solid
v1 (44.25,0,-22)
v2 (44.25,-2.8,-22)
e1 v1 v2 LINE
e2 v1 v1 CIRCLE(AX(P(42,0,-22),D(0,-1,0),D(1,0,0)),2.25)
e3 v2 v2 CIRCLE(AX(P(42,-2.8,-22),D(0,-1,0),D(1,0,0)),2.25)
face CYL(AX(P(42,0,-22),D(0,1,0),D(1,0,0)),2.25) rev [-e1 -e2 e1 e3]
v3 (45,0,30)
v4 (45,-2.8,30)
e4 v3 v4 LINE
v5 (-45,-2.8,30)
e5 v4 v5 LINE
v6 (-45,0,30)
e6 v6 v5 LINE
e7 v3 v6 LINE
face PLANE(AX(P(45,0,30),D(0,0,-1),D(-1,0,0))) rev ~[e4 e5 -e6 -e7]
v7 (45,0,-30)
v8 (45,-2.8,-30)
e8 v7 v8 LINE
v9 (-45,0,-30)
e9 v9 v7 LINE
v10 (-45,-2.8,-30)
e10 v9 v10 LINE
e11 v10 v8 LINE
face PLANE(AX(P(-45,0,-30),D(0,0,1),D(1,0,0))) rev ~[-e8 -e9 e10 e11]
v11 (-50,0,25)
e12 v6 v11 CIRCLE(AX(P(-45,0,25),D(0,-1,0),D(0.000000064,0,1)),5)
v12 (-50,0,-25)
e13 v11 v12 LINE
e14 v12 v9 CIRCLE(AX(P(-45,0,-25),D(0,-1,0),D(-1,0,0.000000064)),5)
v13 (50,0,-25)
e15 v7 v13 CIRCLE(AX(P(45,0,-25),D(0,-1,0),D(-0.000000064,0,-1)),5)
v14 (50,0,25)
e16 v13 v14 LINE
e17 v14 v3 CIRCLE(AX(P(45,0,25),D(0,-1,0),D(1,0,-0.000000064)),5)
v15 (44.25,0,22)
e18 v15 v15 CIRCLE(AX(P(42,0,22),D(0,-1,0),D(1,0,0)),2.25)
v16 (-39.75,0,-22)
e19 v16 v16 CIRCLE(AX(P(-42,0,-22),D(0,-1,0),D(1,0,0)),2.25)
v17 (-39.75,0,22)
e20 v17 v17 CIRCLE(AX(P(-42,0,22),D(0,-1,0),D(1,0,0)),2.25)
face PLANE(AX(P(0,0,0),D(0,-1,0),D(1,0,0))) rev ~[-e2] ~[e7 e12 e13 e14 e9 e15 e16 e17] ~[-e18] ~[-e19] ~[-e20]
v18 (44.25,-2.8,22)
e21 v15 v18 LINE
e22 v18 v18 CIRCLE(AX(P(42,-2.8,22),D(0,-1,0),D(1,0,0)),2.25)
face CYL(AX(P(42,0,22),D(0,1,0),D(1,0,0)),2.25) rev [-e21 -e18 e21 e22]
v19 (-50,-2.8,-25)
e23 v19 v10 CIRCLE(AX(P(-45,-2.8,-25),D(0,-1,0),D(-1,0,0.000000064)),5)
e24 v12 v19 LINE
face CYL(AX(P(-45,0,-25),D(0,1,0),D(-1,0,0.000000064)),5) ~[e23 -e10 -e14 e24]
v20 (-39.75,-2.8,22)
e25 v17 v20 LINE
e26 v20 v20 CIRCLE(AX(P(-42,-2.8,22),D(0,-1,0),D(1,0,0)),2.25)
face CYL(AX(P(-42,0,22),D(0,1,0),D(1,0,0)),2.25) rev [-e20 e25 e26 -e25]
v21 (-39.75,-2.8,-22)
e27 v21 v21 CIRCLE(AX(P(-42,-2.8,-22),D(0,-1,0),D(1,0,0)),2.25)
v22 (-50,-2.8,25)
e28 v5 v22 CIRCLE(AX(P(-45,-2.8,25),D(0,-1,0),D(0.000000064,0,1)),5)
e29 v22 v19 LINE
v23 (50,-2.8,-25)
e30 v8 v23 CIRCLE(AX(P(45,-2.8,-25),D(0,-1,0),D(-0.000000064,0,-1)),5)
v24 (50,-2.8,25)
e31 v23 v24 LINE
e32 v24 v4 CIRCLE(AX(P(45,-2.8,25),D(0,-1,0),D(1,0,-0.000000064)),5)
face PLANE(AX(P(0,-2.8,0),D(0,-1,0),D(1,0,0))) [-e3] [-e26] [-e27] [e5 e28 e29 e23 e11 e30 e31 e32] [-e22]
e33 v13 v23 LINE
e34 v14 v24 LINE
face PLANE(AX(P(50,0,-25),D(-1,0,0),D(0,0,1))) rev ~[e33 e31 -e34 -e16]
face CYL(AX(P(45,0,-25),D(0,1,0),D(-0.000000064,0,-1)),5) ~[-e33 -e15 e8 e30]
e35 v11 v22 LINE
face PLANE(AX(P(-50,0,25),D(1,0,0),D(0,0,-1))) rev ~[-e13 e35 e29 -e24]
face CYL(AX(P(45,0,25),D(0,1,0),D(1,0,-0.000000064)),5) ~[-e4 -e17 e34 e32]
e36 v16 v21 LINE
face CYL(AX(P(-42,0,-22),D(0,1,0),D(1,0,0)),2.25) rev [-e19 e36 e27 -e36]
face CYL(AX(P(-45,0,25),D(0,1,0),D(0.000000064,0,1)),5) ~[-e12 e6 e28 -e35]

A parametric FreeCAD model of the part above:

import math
import FreeCAD as App
import Part
import Sketcher
from FreeCAD import Vector
Q = App.Units.Quantity

doc = App.newDocument("Part")
body = doc.addObject("PartDesign::Body", "Body")

sketch1 = body.newObject("Sketcher::SketchObject", "Sketch")
sketch1.AttachmentSupport = (doc.getObject("XZ_Plane"), [""])
sketch1.MapMode = "FlatFace"
sketch1.addGeometry([
    Part.LineSegment(Vector(-45, -30, 0), Vector(45, -30, 0)),
    Part.ArcOfCircle(Part.Circle(Vector(45, -25, 0), Vector(0, 0, 1), 5), math.radians(-90.000004), math.radians(0.000004)),
    Part.LineSegment(Vector(50, -25, 0), Vector(50, 25, 0)),
    Part.ArcOfCircle(Part.Circle(Vector(45, 25, 0), Vector(0, 0, 1), 5), math.radians(-0.000004), math.radians(90.000004)),
    Part.LineSegment(Vector(45, 30, 0), Vector(-45, 30, 0)),
    Part.ArcOfCircle(Part.Circle(Vector(-45, 25, 0), Vector(0, 0, 1), 5), math.radians(89.999996), math.radians(180.000004)),
    Part.LineSegment(Vector(-50, 25, 0), Vector(-50, -25, 0)),
    Part.ArcOfCircle(Part.Circle(Vector(-45, -25, 0), Vector(0, 0, 1), 5), math.radians(179.999996), math.radians(270.000004)),
    Part.Circle(Vector(-42, -22, 0), Vector(0, 0, 1), 2.25),
    Part.Circle(Vector(42, -22, 0), Vector(0, 0, 1), 2.25),
    Part.Circle(Vector(-42, 22, 0), Vector(0, 0, 1), 2.25),
    Part.Circle(Vector(42, 22, 0), Vector(0, 0, 1), 2.25),
], False)
sketch1.addConstraint([
    Sketcher.Constraint("Tangent", 0, 2, 1, 1),
    Sketcher.Constraint("Tangent", 1, 2, 2, 1),
    Sketcher.Constraint("Tangent", 2, 2, 3, 1),
    Sketcher.Constraint("Tangent", 3, 2, 4, 1),
    Sketcher.Constraint("Tangent", 4, 2, 5, 1),
    Sketcher.Constraint("Tangent", 5, 2, 6, 1),
    Sketcher.Constraint("Tangent", 6, 2, 7, 1),
    Sketcher.Constraint("Tangent", 7, 2, 0, 1),
    Sketcher.Constraint("Horizontal", 0),
    Sketcher.Constraint("Vertical", 2),
    Sketcher.Constraint("Horizontal", 4),
    Sketcher.Constraint("Vertical", 6),
    Sketcher.Constraint("Equal", 1, 3),
    Sketcher.Constraint("Equal", 3, 5),
    Sketcher.Constraint("Equal", 5, 7),
    Sketcher.Constraint("Equal", 8, 9),
    Sketcher.Constraint("Equal", 9, 10),
    Sketcher.Constraint("Equal", 10, 11),
    Sketcher.Constraint("Symmetric", 1, 3, 5, 3, -1, 1),
    Sketcher.Constraint("Symmetric", 9, 3, 10, 3, -1, 1),
    Sketcher.Constraint("Symmetric", 8, 3, 11, 3, -1, 1),
    Sketcher.Constraint("Symmetric", 8, 3, 9, 3, -2),
    Sketcher.Constraint("Radius", 1, Q("5 mm")),
    Sketcher.Constraint("Diameter", 8, Q("4.5 mm")),
    Sketcher.Constraint("DistanceX", 0, 1, 0, 2, Q("90 mm")),
    Sketcher.Constraint("DistanceY", 2, 1, 2, 2, Q("50 mm")),
    Sketcher.Constraint("DistanceX", 8, 3, -1, 1, Q("42 mm")),
    Sketcher.Constraint("DistanceY", 8, 3, -1, 1, Q("22 mm")),
])
pad1 = body.newObject("PartDesign::Pad", "Pad")
pad1.Profile = sketch1
pad1.Length = 2.8

doc.recompute()
